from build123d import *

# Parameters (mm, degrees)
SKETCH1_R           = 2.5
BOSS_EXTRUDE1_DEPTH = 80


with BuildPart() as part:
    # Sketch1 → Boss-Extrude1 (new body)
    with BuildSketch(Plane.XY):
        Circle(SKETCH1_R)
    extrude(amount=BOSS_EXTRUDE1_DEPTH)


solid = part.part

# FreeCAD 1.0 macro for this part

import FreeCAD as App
import Part
import Sketcher

V = App.Vector

doc = App.newDocument("Part")
body = doc.addObject("PartDesign::Body", "Body")

sketch1 = doc.addObject("Sketcher::SketchObject", "Sketch")
body.addObject(sketch1)
sketch1.AttachmentSupport = (doc.XY_Plane, [""])
sketch1.MapMode = "FlatFace"
sketch1.addGeometry(Part.Circle(V(0, 0, 0), V(0, 0, 1), 2.5), False)
sketch1.addConstraint([
    Sketcher.Constraint("Coincident", 0, 3, -1, 1),
    Sketcher.Constraint("Diameter", 0, 5.0),
])
pad1 = doc.addObject("PartDesign::Pad", "Pad")
body.addObject(pad1)
pad1.Profile = sketch1
pad1.Length = 80

doc.recompute()
